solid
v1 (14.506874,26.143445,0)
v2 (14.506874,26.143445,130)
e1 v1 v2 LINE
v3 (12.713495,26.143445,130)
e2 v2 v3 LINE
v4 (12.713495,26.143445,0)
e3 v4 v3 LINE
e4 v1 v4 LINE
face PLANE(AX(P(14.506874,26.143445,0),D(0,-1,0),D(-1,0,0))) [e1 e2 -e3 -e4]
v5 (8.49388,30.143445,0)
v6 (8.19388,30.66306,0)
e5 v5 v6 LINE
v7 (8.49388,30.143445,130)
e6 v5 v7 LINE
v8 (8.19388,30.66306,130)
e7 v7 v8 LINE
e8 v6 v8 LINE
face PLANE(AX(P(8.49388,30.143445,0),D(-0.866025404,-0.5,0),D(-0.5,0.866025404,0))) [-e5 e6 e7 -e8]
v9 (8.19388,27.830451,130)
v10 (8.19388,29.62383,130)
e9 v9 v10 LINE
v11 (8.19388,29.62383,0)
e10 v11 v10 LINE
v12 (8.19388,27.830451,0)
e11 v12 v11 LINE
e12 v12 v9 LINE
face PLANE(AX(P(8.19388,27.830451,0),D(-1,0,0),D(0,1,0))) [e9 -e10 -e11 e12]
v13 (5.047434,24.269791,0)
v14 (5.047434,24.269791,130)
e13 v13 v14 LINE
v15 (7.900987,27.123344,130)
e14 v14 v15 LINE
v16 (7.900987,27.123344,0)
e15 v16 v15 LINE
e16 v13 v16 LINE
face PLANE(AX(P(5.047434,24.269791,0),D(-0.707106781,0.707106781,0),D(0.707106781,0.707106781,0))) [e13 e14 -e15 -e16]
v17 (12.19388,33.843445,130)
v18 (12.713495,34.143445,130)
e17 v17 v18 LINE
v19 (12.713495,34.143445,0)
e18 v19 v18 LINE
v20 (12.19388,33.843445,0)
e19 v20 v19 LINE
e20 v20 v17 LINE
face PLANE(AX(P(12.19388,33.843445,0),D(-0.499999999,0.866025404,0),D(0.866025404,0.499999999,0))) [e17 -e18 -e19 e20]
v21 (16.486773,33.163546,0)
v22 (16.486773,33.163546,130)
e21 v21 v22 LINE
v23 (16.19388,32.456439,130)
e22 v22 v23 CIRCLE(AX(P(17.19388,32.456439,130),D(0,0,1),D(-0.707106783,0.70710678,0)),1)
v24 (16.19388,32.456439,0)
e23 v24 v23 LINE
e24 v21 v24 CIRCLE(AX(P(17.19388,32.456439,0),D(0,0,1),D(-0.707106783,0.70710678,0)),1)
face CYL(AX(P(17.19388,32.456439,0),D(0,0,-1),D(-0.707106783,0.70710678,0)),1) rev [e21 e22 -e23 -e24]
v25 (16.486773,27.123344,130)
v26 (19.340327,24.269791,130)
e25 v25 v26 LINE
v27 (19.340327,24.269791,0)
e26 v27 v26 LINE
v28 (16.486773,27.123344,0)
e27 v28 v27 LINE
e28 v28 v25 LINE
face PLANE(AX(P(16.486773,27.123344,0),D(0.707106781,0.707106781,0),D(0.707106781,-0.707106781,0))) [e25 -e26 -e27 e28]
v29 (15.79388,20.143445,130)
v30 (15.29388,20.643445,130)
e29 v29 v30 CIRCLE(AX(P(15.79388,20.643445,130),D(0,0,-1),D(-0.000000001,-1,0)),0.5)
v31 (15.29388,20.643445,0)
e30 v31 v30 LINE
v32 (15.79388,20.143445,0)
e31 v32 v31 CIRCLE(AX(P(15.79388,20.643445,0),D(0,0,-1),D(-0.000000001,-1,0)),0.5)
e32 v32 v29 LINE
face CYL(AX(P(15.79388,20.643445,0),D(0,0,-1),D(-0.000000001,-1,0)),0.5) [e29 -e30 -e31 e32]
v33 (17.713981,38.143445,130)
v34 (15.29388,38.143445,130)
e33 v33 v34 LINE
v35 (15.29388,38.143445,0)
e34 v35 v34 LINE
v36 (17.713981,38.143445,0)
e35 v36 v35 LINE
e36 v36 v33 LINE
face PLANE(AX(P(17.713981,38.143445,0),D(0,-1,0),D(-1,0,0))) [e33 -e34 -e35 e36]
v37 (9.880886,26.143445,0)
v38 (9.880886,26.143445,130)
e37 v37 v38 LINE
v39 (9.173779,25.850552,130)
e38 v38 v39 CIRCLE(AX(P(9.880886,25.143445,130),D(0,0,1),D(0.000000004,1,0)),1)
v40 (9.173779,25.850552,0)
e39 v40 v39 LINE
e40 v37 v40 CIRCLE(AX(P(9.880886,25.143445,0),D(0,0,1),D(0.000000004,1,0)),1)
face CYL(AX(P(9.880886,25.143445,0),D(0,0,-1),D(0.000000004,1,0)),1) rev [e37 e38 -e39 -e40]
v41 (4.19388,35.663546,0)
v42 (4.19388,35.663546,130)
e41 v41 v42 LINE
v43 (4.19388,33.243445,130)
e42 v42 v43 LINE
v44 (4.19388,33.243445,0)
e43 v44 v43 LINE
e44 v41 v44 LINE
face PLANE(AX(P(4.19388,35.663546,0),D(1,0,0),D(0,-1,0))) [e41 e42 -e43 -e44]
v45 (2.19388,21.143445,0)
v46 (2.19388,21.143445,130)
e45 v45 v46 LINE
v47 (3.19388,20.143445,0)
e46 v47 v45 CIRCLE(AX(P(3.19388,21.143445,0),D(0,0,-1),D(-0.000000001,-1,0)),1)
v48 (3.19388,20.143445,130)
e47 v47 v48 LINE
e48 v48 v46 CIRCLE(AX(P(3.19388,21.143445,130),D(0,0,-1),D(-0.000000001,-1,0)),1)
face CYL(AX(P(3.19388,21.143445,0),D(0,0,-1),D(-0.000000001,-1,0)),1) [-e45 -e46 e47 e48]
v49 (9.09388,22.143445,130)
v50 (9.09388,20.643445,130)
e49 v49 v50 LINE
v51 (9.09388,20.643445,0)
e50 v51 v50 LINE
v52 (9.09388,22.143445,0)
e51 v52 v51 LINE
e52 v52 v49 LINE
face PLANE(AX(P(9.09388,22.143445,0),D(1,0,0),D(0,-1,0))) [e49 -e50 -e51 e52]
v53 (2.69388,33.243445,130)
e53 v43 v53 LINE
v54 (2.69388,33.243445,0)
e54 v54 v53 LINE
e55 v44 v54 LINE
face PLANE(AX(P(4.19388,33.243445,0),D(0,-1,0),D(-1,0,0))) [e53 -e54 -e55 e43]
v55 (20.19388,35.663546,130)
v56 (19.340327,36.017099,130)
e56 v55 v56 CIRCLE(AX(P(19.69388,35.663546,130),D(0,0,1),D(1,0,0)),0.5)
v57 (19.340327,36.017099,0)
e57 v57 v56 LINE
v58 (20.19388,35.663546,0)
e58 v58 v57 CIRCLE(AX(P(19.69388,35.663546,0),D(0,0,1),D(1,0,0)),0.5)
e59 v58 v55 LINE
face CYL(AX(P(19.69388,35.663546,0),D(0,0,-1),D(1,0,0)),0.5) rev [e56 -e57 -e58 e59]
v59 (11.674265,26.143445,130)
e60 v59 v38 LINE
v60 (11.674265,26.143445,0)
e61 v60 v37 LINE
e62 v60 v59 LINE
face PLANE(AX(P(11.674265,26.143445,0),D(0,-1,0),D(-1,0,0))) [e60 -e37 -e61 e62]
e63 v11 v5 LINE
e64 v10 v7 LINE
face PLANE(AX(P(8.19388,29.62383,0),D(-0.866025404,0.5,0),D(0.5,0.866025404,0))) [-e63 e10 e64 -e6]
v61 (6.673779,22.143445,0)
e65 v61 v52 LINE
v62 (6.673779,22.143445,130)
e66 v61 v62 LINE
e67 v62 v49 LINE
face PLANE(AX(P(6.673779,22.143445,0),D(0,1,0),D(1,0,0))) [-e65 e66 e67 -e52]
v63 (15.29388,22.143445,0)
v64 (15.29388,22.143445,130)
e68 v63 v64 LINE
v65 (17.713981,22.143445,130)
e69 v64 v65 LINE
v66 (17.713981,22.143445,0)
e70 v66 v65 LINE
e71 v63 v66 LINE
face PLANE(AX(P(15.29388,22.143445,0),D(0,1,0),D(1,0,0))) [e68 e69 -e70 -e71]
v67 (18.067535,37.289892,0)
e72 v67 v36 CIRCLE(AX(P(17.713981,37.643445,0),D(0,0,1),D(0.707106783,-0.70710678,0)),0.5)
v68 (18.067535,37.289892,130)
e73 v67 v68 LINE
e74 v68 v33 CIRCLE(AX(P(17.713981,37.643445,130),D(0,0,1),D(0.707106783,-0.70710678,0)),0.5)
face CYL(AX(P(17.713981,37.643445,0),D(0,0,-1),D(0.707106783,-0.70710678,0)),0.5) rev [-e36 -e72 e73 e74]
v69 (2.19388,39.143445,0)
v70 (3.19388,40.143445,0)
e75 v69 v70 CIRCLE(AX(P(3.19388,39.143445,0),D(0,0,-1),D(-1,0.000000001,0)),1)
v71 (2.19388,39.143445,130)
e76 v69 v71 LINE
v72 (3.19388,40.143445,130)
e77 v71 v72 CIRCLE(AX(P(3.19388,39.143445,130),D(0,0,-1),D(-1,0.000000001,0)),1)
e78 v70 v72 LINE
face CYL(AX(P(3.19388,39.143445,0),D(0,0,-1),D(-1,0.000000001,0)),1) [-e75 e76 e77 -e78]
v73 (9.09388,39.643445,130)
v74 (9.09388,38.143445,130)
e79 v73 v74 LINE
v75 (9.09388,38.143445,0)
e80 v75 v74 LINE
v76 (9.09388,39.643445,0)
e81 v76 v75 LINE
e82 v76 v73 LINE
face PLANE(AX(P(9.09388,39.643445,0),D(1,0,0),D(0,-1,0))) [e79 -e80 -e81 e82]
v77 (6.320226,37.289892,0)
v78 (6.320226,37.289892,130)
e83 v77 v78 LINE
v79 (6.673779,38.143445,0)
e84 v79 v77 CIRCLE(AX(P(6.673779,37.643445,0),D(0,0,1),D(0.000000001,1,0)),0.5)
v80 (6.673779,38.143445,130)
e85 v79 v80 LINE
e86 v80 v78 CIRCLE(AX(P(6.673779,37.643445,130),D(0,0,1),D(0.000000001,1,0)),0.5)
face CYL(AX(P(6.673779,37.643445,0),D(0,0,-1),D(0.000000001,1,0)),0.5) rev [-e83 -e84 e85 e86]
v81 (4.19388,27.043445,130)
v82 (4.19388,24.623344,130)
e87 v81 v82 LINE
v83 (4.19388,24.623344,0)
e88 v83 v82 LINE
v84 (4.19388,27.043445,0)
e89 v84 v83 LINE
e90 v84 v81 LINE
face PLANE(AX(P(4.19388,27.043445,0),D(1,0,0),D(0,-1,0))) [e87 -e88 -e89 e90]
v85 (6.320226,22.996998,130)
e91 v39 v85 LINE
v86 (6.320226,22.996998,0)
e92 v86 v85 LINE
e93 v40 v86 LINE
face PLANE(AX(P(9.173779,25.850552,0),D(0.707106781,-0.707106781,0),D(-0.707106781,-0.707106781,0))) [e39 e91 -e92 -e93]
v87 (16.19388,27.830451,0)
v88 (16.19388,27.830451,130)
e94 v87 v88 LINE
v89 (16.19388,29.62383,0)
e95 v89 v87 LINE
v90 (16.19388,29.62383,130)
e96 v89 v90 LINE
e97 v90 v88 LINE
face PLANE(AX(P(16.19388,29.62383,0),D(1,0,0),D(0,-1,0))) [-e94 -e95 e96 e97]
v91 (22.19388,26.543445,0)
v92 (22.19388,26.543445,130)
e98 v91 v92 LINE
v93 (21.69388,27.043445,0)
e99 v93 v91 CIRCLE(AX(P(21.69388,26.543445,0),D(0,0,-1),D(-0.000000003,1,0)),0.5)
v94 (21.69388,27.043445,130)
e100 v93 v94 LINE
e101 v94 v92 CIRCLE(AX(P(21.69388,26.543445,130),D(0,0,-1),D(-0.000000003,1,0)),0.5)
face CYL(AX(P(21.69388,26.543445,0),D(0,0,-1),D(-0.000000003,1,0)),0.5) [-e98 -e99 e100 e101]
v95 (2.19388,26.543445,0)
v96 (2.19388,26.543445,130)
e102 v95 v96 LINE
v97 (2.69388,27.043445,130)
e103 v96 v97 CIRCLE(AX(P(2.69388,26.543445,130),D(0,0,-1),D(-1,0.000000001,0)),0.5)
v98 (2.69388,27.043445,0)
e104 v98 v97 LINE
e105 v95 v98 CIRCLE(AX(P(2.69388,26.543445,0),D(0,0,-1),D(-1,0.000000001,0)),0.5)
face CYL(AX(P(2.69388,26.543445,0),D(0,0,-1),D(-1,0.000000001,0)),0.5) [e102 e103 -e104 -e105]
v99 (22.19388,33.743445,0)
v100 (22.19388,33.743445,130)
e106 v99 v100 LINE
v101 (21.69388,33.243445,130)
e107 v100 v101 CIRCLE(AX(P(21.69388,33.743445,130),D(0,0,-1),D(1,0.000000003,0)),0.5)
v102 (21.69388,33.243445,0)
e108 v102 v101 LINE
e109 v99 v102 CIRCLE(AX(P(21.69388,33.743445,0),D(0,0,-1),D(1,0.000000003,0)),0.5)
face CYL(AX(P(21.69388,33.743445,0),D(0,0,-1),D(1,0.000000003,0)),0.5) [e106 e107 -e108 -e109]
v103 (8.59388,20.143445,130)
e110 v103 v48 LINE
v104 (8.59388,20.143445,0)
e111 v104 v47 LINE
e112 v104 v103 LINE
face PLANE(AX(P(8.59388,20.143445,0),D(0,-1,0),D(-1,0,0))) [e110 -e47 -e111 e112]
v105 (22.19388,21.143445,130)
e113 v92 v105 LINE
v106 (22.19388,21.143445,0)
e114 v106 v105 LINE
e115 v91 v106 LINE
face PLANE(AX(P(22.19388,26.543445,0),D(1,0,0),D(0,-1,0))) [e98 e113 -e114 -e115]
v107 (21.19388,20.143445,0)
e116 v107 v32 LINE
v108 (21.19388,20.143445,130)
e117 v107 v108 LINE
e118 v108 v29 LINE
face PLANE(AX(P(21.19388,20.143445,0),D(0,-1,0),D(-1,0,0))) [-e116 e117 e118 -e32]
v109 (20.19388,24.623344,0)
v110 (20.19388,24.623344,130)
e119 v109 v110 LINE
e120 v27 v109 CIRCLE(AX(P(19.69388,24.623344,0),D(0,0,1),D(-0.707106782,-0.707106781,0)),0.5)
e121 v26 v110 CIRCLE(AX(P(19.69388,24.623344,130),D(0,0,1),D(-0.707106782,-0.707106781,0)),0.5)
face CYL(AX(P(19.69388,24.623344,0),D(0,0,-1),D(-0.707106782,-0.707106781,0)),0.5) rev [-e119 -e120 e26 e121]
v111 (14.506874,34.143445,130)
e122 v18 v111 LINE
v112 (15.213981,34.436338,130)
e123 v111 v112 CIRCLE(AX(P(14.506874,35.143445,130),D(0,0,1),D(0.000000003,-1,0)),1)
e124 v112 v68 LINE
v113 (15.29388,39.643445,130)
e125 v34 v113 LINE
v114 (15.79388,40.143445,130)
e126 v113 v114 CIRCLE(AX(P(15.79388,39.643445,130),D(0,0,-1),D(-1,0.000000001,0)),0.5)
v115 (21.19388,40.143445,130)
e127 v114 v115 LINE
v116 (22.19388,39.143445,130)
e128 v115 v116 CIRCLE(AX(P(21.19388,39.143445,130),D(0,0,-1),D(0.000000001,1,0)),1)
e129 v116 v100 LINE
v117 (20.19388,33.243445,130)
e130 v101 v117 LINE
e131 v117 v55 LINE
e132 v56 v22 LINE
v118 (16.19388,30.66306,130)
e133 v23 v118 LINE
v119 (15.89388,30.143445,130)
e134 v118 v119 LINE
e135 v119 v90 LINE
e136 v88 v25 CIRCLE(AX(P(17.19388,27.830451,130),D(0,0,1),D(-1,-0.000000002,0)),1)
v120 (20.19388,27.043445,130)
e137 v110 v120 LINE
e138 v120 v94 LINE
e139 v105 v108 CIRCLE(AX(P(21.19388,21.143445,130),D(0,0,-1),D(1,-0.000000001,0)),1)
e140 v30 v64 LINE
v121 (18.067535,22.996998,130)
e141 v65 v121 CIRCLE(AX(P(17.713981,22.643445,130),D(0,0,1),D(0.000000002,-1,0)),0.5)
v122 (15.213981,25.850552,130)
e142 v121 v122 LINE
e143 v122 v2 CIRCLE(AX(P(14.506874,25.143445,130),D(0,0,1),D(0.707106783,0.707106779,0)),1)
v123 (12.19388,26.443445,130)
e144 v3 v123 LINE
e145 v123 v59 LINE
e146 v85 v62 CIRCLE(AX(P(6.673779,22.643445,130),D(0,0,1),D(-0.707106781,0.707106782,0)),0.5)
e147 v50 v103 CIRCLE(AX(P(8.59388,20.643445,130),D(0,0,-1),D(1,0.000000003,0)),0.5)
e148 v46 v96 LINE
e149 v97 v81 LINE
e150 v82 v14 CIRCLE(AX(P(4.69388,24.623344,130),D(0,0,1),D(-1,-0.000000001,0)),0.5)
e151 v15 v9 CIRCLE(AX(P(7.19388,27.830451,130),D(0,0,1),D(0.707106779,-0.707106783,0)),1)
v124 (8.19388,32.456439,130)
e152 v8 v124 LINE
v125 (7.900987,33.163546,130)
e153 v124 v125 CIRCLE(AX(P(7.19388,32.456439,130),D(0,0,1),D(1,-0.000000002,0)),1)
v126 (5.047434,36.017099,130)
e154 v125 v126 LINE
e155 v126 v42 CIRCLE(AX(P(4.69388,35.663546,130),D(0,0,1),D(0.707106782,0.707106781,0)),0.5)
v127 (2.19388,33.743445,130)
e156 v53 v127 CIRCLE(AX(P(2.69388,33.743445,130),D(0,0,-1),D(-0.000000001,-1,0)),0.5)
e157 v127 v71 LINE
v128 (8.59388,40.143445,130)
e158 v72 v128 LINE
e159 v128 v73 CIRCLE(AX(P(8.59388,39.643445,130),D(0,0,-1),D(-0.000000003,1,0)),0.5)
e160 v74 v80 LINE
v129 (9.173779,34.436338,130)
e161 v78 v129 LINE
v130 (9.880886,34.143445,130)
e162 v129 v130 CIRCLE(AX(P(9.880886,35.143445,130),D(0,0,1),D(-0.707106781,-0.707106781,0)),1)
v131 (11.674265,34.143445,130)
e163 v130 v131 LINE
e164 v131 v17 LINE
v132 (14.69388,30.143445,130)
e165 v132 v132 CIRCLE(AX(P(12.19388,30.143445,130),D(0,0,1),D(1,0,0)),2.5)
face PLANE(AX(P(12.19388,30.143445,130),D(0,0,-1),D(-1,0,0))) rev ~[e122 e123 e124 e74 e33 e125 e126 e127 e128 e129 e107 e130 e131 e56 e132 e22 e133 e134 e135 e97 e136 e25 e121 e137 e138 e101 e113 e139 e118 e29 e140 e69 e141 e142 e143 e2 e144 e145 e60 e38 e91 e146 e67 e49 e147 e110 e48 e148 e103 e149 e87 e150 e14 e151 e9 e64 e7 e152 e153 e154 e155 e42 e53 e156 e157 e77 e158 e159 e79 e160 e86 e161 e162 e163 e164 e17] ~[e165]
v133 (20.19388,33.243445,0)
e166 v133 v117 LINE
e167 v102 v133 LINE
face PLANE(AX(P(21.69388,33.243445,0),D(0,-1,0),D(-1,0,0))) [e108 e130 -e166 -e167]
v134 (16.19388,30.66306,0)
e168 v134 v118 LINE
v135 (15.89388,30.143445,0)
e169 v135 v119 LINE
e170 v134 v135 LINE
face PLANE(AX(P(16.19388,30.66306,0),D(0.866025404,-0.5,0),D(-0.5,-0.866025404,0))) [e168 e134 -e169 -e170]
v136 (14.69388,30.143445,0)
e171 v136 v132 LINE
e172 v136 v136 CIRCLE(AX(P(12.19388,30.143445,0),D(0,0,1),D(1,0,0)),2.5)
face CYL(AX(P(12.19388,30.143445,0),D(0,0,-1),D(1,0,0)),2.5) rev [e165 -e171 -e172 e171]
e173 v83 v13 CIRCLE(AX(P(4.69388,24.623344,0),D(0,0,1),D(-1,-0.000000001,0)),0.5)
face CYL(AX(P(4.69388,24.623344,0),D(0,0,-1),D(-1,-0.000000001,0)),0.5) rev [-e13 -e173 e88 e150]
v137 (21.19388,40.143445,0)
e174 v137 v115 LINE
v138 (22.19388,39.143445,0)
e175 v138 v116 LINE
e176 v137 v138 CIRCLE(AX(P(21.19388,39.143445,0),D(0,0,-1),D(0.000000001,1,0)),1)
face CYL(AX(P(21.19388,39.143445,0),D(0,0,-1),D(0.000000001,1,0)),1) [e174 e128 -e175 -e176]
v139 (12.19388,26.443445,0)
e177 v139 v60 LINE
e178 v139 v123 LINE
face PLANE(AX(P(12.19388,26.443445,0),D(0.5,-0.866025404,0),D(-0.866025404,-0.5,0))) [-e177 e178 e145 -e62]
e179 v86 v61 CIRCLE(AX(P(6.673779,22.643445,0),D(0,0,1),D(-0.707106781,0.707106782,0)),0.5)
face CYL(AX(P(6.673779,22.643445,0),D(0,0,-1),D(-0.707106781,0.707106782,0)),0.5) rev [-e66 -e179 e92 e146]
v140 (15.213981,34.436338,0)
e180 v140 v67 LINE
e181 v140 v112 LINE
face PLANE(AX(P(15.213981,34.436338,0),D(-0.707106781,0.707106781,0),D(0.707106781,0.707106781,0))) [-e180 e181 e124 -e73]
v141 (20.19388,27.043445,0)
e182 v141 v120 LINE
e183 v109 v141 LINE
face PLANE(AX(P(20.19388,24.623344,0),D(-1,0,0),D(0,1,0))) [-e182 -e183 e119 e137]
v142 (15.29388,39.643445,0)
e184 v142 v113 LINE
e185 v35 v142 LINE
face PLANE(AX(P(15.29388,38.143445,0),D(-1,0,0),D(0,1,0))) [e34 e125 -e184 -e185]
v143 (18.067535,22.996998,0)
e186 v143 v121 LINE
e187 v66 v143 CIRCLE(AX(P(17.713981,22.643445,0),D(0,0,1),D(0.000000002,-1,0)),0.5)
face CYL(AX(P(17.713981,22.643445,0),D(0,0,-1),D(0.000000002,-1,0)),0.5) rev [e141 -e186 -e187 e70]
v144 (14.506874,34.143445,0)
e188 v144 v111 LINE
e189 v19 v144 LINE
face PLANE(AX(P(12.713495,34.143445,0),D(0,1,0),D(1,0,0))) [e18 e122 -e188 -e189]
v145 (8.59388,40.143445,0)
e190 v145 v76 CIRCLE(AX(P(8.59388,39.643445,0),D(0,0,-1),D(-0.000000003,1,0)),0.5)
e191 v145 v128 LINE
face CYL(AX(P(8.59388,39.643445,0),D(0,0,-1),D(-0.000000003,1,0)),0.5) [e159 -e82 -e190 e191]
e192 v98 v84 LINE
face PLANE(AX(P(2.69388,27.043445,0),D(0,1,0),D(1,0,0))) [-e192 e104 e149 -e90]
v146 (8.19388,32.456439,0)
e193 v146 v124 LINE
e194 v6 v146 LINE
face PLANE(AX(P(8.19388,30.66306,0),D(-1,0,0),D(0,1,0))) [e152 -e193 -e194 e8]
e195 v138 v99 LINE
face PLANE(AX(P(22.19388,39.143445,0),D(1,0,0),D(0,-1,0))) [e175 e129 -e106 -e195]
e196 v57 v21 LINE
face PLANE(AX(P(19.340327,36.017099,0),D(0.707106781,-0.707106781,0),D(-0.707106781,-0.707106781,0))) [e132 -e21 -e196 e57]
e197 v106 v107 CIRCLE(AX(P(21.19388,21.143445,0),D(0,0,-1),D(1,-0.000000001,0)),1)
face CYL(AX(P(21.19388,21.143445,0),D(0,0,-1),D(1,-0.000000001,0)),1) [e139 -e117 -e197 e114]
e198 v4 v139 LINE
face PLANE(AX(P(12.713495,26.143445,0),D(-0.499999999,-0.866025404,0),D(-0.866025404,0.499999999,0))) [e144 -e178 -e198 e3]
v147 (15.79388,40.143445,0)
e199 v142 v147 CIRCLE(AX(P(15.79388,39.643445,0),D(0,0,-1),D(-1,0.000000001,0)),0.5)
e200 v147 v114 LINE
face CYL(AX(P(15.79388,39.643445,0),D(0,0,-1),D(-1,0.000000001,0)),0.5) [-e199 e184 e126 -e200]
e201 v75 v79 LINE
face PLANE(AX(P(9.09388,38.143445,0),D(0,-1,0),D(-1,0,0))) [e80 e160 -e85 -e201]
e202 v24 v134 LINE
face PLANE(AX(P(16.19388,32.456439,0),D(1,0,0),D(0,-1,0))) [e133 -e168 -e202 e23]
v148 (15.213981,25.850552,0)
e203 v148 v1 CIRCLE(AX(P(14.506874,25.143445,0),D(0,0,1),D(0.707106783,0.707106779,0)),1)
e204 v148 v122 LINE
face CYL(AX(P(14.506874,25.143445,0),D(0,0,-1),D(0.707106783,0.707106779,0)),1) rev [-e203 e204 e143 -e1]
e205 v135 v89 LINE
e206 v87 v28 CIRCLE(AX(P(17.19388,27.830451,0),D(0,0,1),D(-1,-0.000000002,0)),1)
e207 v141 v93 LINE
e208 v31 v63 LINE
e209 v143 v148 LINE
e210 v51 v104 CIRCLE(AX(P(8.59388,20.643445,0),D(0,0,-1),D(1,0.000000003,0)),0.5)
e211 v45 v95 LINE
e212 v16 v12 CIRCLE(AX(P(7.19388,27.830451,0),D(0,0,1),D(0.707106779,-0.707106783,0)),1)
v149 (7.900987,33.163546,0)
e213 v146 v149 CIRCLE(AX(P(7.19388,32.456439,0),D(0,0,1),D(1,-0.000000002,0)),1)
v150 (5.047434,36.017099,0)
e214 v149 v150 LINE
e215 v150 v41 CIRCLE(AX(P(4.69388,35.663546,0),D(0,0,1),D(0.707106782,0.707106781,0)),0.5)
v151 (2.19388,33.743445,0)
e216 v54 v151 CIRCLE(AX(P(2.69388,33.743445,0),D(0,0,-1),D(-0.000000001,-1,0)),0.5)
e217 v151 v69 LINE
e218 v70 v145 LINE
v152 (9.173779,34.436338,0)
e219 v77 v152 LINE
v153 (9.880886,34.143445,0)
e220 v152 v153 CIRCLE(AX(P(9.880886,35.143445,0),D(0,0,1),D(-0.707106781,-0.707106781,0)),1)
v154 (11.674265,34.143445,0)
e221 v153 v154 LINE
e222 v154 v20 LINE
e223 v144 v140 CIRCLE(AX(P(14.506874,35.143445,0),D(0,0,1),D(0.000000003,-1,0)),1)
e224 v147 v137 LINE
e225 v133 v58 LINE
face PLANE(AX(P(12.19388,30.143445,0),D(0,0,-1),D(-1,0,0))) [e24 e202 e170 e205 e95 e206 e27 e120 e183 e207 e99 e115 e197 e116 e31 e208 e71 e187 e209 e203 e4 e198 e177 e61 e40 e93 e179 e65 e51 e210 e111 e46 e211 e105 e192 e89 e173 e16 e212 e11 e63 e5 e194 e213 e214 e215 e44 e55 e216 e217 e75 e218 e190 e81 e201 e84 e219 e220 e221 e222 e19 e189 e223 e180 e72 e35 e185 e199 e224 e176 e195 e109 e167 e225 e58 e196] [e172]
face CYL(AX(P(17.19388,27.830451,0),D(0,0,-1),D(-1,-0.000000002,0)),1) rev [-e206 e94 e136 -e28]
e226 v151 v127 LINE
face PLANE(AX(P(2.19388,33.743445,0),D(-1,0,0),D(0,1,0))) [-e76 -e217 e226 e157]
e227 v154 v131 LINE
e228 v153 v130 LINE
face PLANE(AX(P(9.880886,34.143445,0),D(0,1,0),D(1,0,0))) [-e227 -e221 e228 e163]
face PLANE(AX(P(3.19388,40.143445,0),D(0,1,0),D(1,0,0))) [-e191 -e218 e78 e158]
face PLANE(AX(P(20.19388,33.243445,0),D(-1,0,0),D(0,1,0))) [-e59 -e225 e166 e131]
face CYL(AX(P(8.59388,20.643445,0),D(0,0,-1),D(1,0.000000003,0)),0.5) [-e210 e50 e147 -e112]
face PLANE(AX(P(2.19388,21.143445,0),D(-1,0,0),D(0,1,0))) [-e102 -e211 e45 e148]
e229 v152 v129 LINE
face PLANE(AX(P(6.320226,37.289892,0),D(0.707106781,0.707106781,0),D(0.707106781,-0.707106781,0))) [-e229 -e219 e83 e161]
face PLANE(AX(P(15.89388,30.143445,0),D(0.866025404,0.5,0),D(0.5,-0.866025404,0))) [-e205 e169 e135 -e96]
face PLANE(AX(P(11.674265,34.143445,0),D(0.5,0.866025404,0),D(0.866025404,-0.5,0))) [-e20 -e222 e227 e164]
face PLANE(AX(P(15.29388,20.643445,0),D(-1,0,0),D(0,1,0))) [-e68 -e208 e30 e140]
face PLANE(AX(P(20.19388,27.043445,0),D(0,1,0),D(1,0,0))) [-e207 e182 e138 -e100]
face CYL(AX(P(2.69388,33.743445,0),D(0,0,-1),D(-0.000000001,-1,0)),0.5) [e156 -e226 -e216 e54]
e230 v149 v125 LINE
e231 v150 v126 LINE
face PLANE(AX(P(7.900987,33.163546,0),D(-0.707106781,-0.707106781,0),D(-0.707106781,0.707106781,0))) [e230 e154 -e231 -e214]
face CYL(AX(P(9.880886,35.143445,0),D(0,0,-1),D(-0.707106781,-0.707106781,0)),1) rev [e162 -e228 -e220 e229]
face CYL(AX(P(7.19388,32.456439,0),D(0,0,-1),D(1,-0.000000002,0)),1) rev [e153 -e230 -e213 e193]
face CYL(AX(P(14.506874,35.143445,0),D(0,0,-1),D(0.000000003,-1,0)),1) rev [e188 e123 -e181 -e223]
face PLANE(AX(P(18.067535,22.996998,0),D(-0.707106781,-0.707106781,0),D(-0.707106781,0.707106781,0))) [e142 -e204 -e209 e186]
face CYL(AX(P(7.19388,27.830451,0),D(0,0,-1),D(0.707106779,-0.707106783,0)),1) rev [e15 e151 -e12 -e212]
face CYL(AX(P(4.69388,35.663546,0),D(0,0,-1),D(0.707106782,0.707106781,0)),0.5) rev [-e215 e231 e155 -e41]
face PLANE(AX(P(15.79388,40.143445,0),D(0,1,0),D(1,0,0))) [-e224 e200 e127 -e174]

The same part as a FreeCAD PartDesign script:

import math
import FreeCAD as App
import Part
import Sketcher

V = App.Vector
Q = App.Units.Quantity

doc = App.newDocument("Part")
params = doc.addObject("Spreadsheet::Sheet", "Params")
for row, (alias, value) in enumerate([
    ("sketch1_diameter", "5 mm"),
    ("sketch1_radius", "1 mm"),
    ("sketch1_radius2", "0.5 mm"),
    ("sketch1_width", "1.5 mm"),
    ("sketch1_width2", "5.4 mm"),
    ("pad1_length", "130 mm"),
], start=1):
    params.set(f"A{row}", alias)
    params.set(f"B{row}", "=" + value)
    params.setAlias(f"B{row}", alias)

body = doc.addObject("PartDesign::Body", "Body")

# Sketch on XY plane
sketch1 = body.newObject("Sketcher::SketchObject", "Sketch")
sketch1.AttachmentSupport = (doc.getObject("XY_Plane"), [""])
sketch1.MapMode = "FlatFace"
sketch1.addGeometry(Part.LineSegment(V(19.34, 24.27, 0), V(16.49, 27.12, 0)), False)
sketch1.addGeometry(Part.ArcOfCircle(Part.Circle(V(17.19, 27.83, 0), V(0, 0, 1), 1), math.radians(-180), math.radians(-135)), False)
sketch1.addGeometry(Part.LineSegment(V(16.19, 27.83, 0), V(16.19, 29.62, 0)), False)
sketch1.addGeometry(Part.LineSegment(V(16.19, 29.62, 0), V(15.89, 30.14, 0)), False)
sketch1.addGeometry(Part.LineSegment(V(15.89, 30.14, 0), V(16.19, 30.66, 0)), False)
sketch1.addGeometry(Part.LineSegment(V(16.19, 30.66, 0), V(16.19, 32.46, 0)), False)
sketch1.addGeometry(Part.ArcOfCircle(Part.Circle(V(17.19, 32.46, 0), V(0, 0, 1), 1), math.radians(135), math.radians(180)), False)
sketch1.addGeometry(Part.LineSegment(V(16.49, 33.16, 0), V(19.34, 36.02, 0)), False)
sketch1.addGeometry(Part.ArcOfCircle(Part.Circle(V(19.69, 35.66, 0), V(0, 0, 1), 0.5), math.radians(0), math.radians(135)), False)
sketch1.addGeometry(Part.LineSegment(V(20.19, 35.66, 0), V(20.19, 33.24, 0)), False)
sketch1.addGeometry(Part.LineSegment(V(20.19, 33.24, 0), V(21.69, 33.24, 0)), False)
sketch1.addGeometry(Part.ArcOfCircle(Part.Circle(V(21.69, 33.74, 0), V(0, 0, 1), 0.5), math.radians(-90), math.radians(0)), False)
sketch1.addGeometry(Part.LineSegment(V(22.19, 33.74, 0), V(22.19, 39.14, 0)), False)
sketch1.addGeometry(Part.ArcOfCircle(Part.Circle(V(21.19, 39.14, 0), V(0, 0, 1), 1), math.radians(0), math.radians(90)), False)
sketch1.addGeometry(Part.LineSegment(V(21.19, 40.14, 0), V(15.79, 40.14, 0)), False)
sketch1.addGeometry(Part.ArcOfCircle(Part.Circle(V(15.79, 39.64, 0), V(0, 0, 1), 0.5), math.radians(90), math.radians(180)), False)
sketch1.addGeometry(Part.LineSegment(V(15.29, 39.64, 0), V(15.29, 38.14, 0)), False)
sketch1.addGeometry(Part.LineSegment(V(15.29, 38.14, 0), V(17.71, 38.14, 0)), False)
sketch1.addGeometry(Part.ArcOfCircle(Part.Circle(V(17.71, 37.64, 0), V(0, 0, 1), 0.5), math.radians(-45), math.radians(90)), False)
sketch1.addGeometry(Part.LineSegment(V(18.07, 37.29, 0), V(15.21, 34.44, 0)), False)
sketch1.addGeometry(Part.ArcOfCircle(Part.Circle(V(14.51, 35.14, 0), V(0, 0, 1), 1), math.radians(-90), math.radians(-45)), False)
sketch1.addGeometry(Part.LineSegment(V(14.51, 34.14, 0), V(12.71, 34.14, 0)), False)
sketch1.addGeometry(Part.LineSegment(V(12.71, 34.14, 0), V(12.19, 33.84, 0)), False)
sketch1.addGeometry(Part.LineSegment(V(12.19, 33.84, 0), V(11.67, 34.14, 0)), False)
sketch1.addGeometry(Part.LineSegment(V(11.67, 34.14, 0), V(9.88, 34.14, 0)), False)
sketch1.addGeometry(Part.ArcOfCircle(Part.Circle(V(9.88, 35.14, 0), V(0, 0, 1), 1), math.radians(-135), math.radians(-90)), False)
sketch1.addGeometry(Part.LineSegment(V(9.17, 34.44, 0), V(6.32, 37.29, 0)), False)
sketch1.addGeometry(Part.ArcOfCircle(Part.Circle(V(6.67, 37.64, 0), V(0, 0, 1), 0.5), math.radians(90), math.radians(225)), False)
sketch1.addGeometry(Part.LineSegment(V(6.67, 38.14, 0), V(9.09, 38.14, 0)), False)
sketch1.addGeometry(Part.LineSegment(V(9.09, 38.14, 0), V(9.09, 39.64, 0)), False)
sketch1.addGeometry(Part.ArcOfCircle(Part.Circle(V(8.59, 39.64, 0), V(0, 0, 1), 0.5), math.radians(0), math.radians(90)), False)
sketch1.addGeometry(Part.LineSegment(V(8.59, 40.14, 0), V(3.19, 40.14, 0)), False)
sketch1.addGeometry(Part.ArcOfCircle(Part.Circle(V(3.19, 39.14, 0), V(0, 0, 1), 1), math.radians(90), math.radians(180)), False)
sketch1.addGeometry(Part.LineSegment(V(2.19, 39.14, 0), V(2.19, 33.74, 0)), False)
sketch1.addGeometry(Part.ArcOfCircle(Part.Circle(V(2.69, 33.74, 0), V(0, 0, 1), 0.5), math.radians(180), math.radians(270)), False)
sketch1.addGeometry(Part.LineSegment(V(2.69, 33.24, 0), V(4.19, 33.24, 0)), False)
sketch1.addGeometry(Part.LineSegment(V(4.19, 33.24, 0), V(4.19, 35.66, 0)), False)
sketch1.addGeometry(Part.ArcOfCircle(Part.Circle(V(4.69, 35.66, 0), V(0, 0, 1), 0.5), math.radians(45), math.radians(180)), False)
sketch1.addGeometry(Part.LineSegment(V(5.05, 36.02, 0), V(7.9, 33.16, 0)), False)
sketch1.addGeometry(Part.ArcOfCircle(Part.Circle(V(7.19, 32.46, 0), V(0, 0, 1), 1), math.radians(0), math.radians(45)), False)
sketch1.addGeometry(Part.LineSegment(V(8.19, 32.46, 0), V(8.19, 30.66, 0)), False)
sketch1.addGeometry(Part.LineSegment(V(8.19, 30.66, 0), V(8.49, 30.14, 0)), False)
sketch1.addGeometry(Part.LineSegment(V(8.49, 30.14, 0), V(8.19, 29.62, 0)), False)
sketch1.addGeometry(Part.LineSegment(V(8.19, 29.62, 0), V(8.19, 27.83, 0)), False)
sketch1.addGeometry(Part.ArcOfCircle(Part.Circle(V(7.19, 27.83, 0), V(0, 0, 1), 1), math.radians(-45), math.radians(0)), False)
sketch1.addGeometry(Part.LineSegment(V(7.9, 27.12, 0), V(5.05, 24.27, 0)), False)
sketch1.addGeometry(Part.ArcOfCircle(Part.Circle(V(4.69, 24.62, 0), V(0, 0, 1), 0.5), math.radians(180), math.radians(315)), False)
sketch1.addGeometry(Part.LineSegment(V(4.19, 24.62, 0), V(4.19, 27.04, 0)), False)
sketch1.addGeometry(Part.LineSegment(V(4.19, 27.04, 0), V(2.69, 27.04, 0)), False)
sketch1.addGeometry(Part.ArcOfCircle(Part.Circle(V(2.69, 26.54, 0), V(0, 0, 1), 0.5), math.radians(90), math.radians(180)), False)
sketch1.addGeometry(Part.LineSegment(V(2.19, 26.54, 0), V(2.19, 21.14, 0)), False)
sketch1.addGeometry(Part.ArcOfCircle(Part.Circle(V(3.19, 21.14, 0), V(0, 0, 1), 1), math.radians(-180), math.radians(-90)), False)
sketch1.addGeometry(Part.LineSegment(V(3.19, 20.14, 0), V(8.59, 20.14, 0)), False)
sketch1.addGeometry(Part.ArcOfCircle(Part.Circle(V(8.59, 20.64, 0), V(0, 0, 1), 0.5), math.radians(-90), math.radians(0)), False)
sketch1.addGeometry(Part.LineSegment(V(9.09, 20.64, 0), V(9.09, 22.14, 0)), False)
sketch1.addGeometry(Part.LineSegment(V(9.09, 22.14, 0), V(6.67, 22.14, 0)), False)
sketch1.addGeometry(Part.ArcOfCircle(Part.Circle(V(6.67, 22.64, 0), V(0, 0, 1), 0.5), math.radians(135), math.radians(270)), False)
sketch1.addGeometry(Part.LineSegment(V(6.32, 23, 0), V(9.17, 25.85, 0)), False)
sketch1.addGeometry(Part.ArcOfCircle(Part.Circle(V(9.88, 25.14, 0), V(0, 0, 1), 1), math.radians(90), math.radians(135)), False)
sketch1.addGeometry(Part.LineSegment(V(9.88, 26.14, 0), V(11.67, 26.14, 0)), False)
sketch1.addGeometry(Part.LineSegment(V(11.67, 26.14, 0), V(12.19, 26.44, 0)), False)
sketch1.addGeometry(Part.LineSegment(V(12.19, 26.44, 0), V(12.71, 26.14, 0)), False)
sketch1.addGeometry(Part.LineSegment(V(12.71, 26.14, 0), V(14.51, 26.14, 0)), False)
sketch1.addGeometry(Part.ArcOfCircle(Part.Circle(V(14.51, 25.14, 0), V(0, 0, 1), 1), math.radians(45), math.radians(90)), False)
sketch1.addGeometry(Part.LineSegment(V(15.21, 25.85, 0), V(18.07, 23, 0)), False)
sketch1.addGeometry(Part.ArcOfCircle(Part.Circle(V(17.71, 22.64, 0), V(0, 0, 1), 0.5), math.radians(-90), math.radians(45)), False)
sketch1.addGeometry(Part.LineSegment(V(17.71, 22.14, 0), V(15.29, 22.14, 0)), False)
sketch1.addGeometry(Part.LineSegment(V(15.29, 22.14, 0), V(15.29, 20.64, 0)), False)
sketch1.addGeometry(Part.ArcOfCircle(Part.Circle(V(15.79, 20.64, 0), V(0, 0, 1), 0.5), math.radians(180), math.radians(270)), False)
sketch1.addGeometry(Part.LineSegment(V(15.79, 20.14, 0), V(21.19, 20.14, 0)), False)
sketch1.addGeometry(Part.ArcOfCircle(Part.Circle(V(21.19, 21.14, 0), V(0, 0, 1), 1), math.radians(-90), math.radians(0)), False)
sketch1.addGeometry(Part.LineSegment(V(22.19, 21.14, 0), V(22.19, 26.54, 0)), False)
sketch1.addGeometry(Part.ArcOfCircle(Part.Circle(V(21.69, 26.54, 0), V(0, 0, 1), 0.5), math.radians(0), math.radians(90)), False)
sketch1.addGeometry(Part.LineSegment(V(21.69, 27.04, 0), V(20.19, 27.04, 0)), False)
sketch1.addGeometry(Part.LineSegment(V(20.19, 27.04, 0), V(20.19, 24.62, 0)), False)
sketch1.addGeometry(Part.ArcOfCircle(Part.Circle(V(19.69, 24.62, 0), V(0, 0, 1), 0.5), math.radians(-135), math.radians(0)), False)
sketch1.addGeometry(Part.Circle(V(12.19, 30.14, 0), V(0, 0, 1), 2.5), False)
sketch1.addConstraint(Sketcher.Constraint("Tangent", 0, 2, 1, 2))
sketch1.addConstraint(Sketcher.Constraint("Tangent", 1, 1, 2, 1))
sketch1.addConstraint(Sketcher.Constraint("Coincident", 2, 2, 3, 1))
sketch1.addConstraint(Sketcher.Constraint("Coincident", 3, 2, 4, 1))
sketch1.addConstraint(Sketcher.Constraint("Coincident", 4, 2, 5, 1))
sketch1.addConstraint(Sketcher.Constraint("Tangent", 5, 2, 6, 2))
sketch1.addConstraint(Sketcher.Constraint("Tangent", 6, 1, 7, 1))
sketch1.addConstraint(Sketcher.Constraint("Tangent", 7, 2, 8, 2))
sketch1.addConstraint(Sketcher.Constraint("Tangent", 8, 1, 9, 1))
sketch1.addConstraint(Sketcher.Constraint("Coincident", 9, 2, 10, 1))
sketch1.addConstraint(Sketcher.Constraint("Tangent", 10, 2, 11, 1))
sketch1.addConstraint(Sketcher.Constraint("Tangent", 11, 2, 12, 1))
sketch1.addConstraint(Sketcher.Constraint("Tangent", 12, 2, 13, 1))
sketch1.addConstraint(Sketcher.Constraint("Tangent", 13, 2, 14, 1))
sketch1.addConstraint(Sketcher.Constraint("Tangent", 14, 2, 15, 1))
sketch1.addConstraint(Sketcher.Constraint("Tangent", 15, 2, 16, 1))
sketch1.addConstraint(Sketcher.Constraint("Coincident", 16, 2, 17, 1))
sketch1.addConstraint(Sketcher.Constraint("Tangent", 17, 2, 18, 2))
sketch1.addConstraint(Sketcher.Constraint("Tangent", 18, 1, 19, 1))
sketch1.addConstraint(Sketcher.Constraint("Tangent", 19, 2, 20, 2))
sketch1.addConstraint(Sketcher.Constraint("Tangent", 20, 1, 21, 1))
sketch1.addConstraint(Sketcher.Constraint("Coincident", 21, 2, 22, 1))
sketch1.addConstraint(Sketcher.Constraint("Coincident", 22, 2, 23, 1))
sketch1.addConstraint(Sketcher.Constraint("Coincident", 23, 2, 24, 1))
sketch1.addConstraint(Sketcher.Constraint("Tangent", 24, 2, 25, 2))
sketch1.addConstraint(Sketcher.Constraint("Tangent", 25, 1, 26, 1))
sketch1.addConstraint(Sketcher.Constraint("Tangent", 26, 2, 27, 2))
sketch1.addConstraint(Sketcher.Constraint("Tangent", 27, 1, 28, 1))
sketch1.addConstraint(Sketcher.Constraint("Coincident", 28, 2, 29, 1))
sketch1.addConstraint(Sketcher.Constraint("Tangent", 29, 2, 30, 1))
sketch1.addConstraint(Sketcher.Constraint("Tangent", 30, 2, 31, 1))
sketch1.addConstraint(Sketcher.Constraint("Tangent", 31, 2, 32, 1))
sketch1.addConstraint(Sketcher.Constraint("Tangent", 32, 2, 33, 1))
sketch1.addConstraint(Sketcher.Constraint("Tangent", 33, 2, 34, 1))
sketch1.addConstraint(Sketcher.Constraint("Tangent", 34, 2, 35, 1))
sketch1.addConstraint(Sketcher.Constraint("Coincident", 35, 2, 36, 1))
sketch1.addConstraint(Sketcher.Constraint("Tangent", 36, 2, 37, 2))
sketch1.addConstraint(Sketcher.Constraint("Tangent", 37, 1, 38, 1))
sketch1.addConstraint(Sketcher.Constraint("Tangent", 38, 2, 39, 2))
sketch1.addConstraint(Sketcher.Constraint("Tangent", 39, 1, 40, 1))
sketch1.addConstraint(Sketcher.Constraint("Coincident", 40, 2, 41, 1))
sketch1.addConstraint(Sketcher.Constraint("Coincident", 41, 2, 42, 1))
sketch1.addConstraint(Sketcher.Constraint("Coincident", 42, 2, 43, 1))
sketch1.addConstraint(Sketcher.Constraint("Tangent", 43, 2, 44, 2))
sketch1.addConstraint(Sketcher.Constraint("Tangent", 44, 1, 45, 1))
sketch1.addConstraint(Sketcher.Constraint("Tangent", 45, 2, 46, 2))
sketch1.addConstraint(Sketcher.Constraint("Tangent", 46, 1, 47, 1))
sketch1.addConstraint(Sketcher.Constraint("Coincident", 47, 2, 48, 1))
sketch1.addConstraint(Sketcher.Constraint("Tangent", 48, 2, 49, 1))
sketch1.addConstraint(Sketcher.Constraint("Tangent", 49, 2, 50, 1))
sketch1.addConstraint(Sketcher.Constraint("Tangent", 50, 2, 51, 1))
sketch1.addConstraint(Sketcher.Constraint("Tangent", 51, 2, 52, 1))
sketch1.addConstraint(Sketcher.Constraint("Tangent", 52, 2, 53, 1))
sketch1.addConstraint(Sketcher.Constraint("Tangent", 53, 2, 54, 1))
sketch1.addConstraint(Sketcher.Constraint("Coincident", 54, 2, 55, 1))
sketch1.addConstraint(Sketcher.Constraint("Tangent", 55, 2, 56, 2))
sketch1.addConstraint(Sketcher.Constraint("Tangent", 56, 1, 57, 1))
sketch1.addConstraint(Sketcher.Constraint("Tangent", 57, 2, 58, 2))
sketch1.addConstraint(Sketcher.Constraint("Tangent", 58, 1, 59, 1))
sketch1.addConstraint(Sketcher.Constraint("Coincident", 59, 2, 60, 1))
sketch1.addConstraint(Sketcher.Constraint("Coincident", 60, 2, 61, 1))
sketch1.addConstraint(Sketcher.Constraint("Coincident", 61, 2, 62, 1))
sketch1.addConstraint(Sketcher.Constraint("Tangent", 62, 2, 63, 2))
sketch1.addConstraint(Sketcher.Constraint("Tangent", 63, 1, 64, 1))
sketch1.addConstraint(Sketcher.Constraint("Tangent", 64, 2, 65, 2))
sketch1.addConstraint(Sketcher.Constraint("Tangent", 65, 1, 66, 1))
sketch1.addConstraint(Sketcher.Constraint("Coincident", 66, 2, 67, 1))
sketch1.addConstraint(Sketcher.Constraint("Tangent", 67, 2, 68, 1))
sketch1.addConstraint(Sketcher.Constraint("Tangent", 68, 2, 69, 1))
sketch1.addConstraint(Sketcher.Constraint("Tangent", 69, 2, 70, 1))
sketch1.addConstraint(Sketcher.Constraint("Tangent", 70, 2, 71, 1))
sketch1.addConstraint(Sketcher.Constraint("Tangent", 71, 2, 72, 1))
sketch1.addConstraint(Sketcher.Constraint("Tangent", 72, 2, 73, 1))
sketch1.addConstraint(Sketcher.Constraint("Coincident", 73, 2, 74, 1))
sketch1.addConstraint(Sketcher.Constraint("Tangent", 74, 2, 75, 2))
sketch1.addConstraint(Sketcher.Constraint("Tangent", 75, 1, 0, 1))
sketch1.addConstraint(Sketcher.Constraint("Vertical", 2))
sketch1.addConstraint(Sketcher.Constraint("Vertical", 5))
sketch1.addConstraint(Sketcher.Constraint("Vertical", 9))
sketch1.addConstraint(Sketcher.Constraint("Horizontal", 10))
sketch1.addConstraint(Sketcher.Constraint("Vertical", 12))
sketch1.addConstraint(Sketcher.Constraint("Horizontal", 14))
sketch1.addConstraint(Sketcher.Constraint("Vertical", 16))
sketch1.addConstraint(Sketcher.Constraint("Horizontal", 17))
sketch1.addConstraint(Sketcher.Constraint("Horizontal", 21))
sketch1.addConstraint(Sketcher.Constraint("Horizontal", 24))
sketch1.addConstraint(Sketcher.Constraint("Horizontal", 28))
sketch1.addConstraint(Sketcher.Constraint("Vertical", 29))
sketch1.addConstraint(Sketcher.Constraint("Horizontal", 31))
sketch1.addConstraint(Sketcher.Constraint("Vertical", 33))
sketch1.addConstraint(Sketcher.Constraint("Horizontal", 35))
sketch1.addConstraint(Sketcher.Constraint("Vertical", 36))
sketch1.addConstraint(Sketcher.Constraint("Vertical", 40))
sketch1.addConstraint(Sketcher.Constraint("Vertical", 43))
sketch1.addConstraint(Sketcher.Constraint("Vertical", 47))
sketch1.addConstraint(Sketcher.Constraint("Horizontal", 48))
sketch1.addConstraint(Sketcher.Constraint("Vertical", 50))
sketch1.addConstraint(Sketcher.Constraint("Horizontal", 52))
sketch1.addConstraint(Sketcher.Constraint("Vertical", 54))
sketch1.addConstraint(Sketcher.Constraint("Horizontal", 55))
sketch1.addConstraint(Sketcher.Constraint("Horizontal", 59))
sketch1.addConstraint(Sketcher.Constraint("Horizontal", 62))
sketch1.addConstraint(Sketcher.Constraint("Horizontal", 66))
sketch1.addConstraint(Sketcher.Constraint("Vertical", 67))
sketch1.addConstraint(Sketcher.Constraint("Horizontal", 69))
sketch1.addConstraint(Sketcher.Constraint("Vertical", 71))
sketch1.addConstraint(Sketcher.Constraint("Horizontal", 73))
sketch1.addConstraint(Sketcher.Constraint("Vertical", 74))
sketch1.addConstraint(Sketcher.Constraint("Equal", 1, 6))
sketch1.addConstraint(Sketcher.Constraint("Equal", 8, 11))
sketch1.addConstraint(Sketcher.Constraint("Equal", 6, 13))
sketch1.addConstraint(Sketcher.Constraint("Equal", 11, 15))
sketch1.addConstraint(Sketcher.Constraint("Equal", 15, 18))
sketch1.addConstraint(Sketcher.Constraint("Equal", 13, 20))
sketch1.addConstraint(Sketcher.Constraint("Equal", 20, 25))
sketch1.addConstraint(Sketcher.Constraint("Equal", 18, 27))
sketch1.addConstraint(Sketcher.Constraint("Equal", 27, 30))
sketch1.addConstraint(Sketcher.Constraint("Equal", 25, 32))
sketch1.addConstraint(Sketcher.Constraint("Equal", 30, 34))
sketch1.addConstraint(Sketcher.Constraint("Equal", 34, 37))
sketch1.addConstraint(Sketcher.Constraint("Equal", 32, 39))
sketch1.addConstraint(Sketcher.Constraint("Equal", 39, 44))
sketch1.addConstraint(Sketcher.Constraint("Equal", 37, 46))
sketch1.addConstraint(Sketcher.Constraint("Equal", 46, 49))
sketch1.addConstraint(Sketcher.Constraint("Equal", 44, 51))
sketch1.addConstraint(Sketcher.Constraint("Equal", 49, 53))
sketch1.addConstraint(Sketcher.Constraint("Equal", 53, 56))
sketch1.addConstraint(Sketcher.Constraint("Equal", 51, 58))
sketch1.addConstraint(Sketcher.Constraint("Equal", 58, 63))
sketch1.addConstraint(Sketcher.Constraint("Equal", 56, 65))
sketch1.addConstraint(Sketcher.Constraint("Equal", 65, 68))
sketch1.addConstraint(Sketcher.Constraint("Equal", 63, 70))
sketch1.addConstraint(Sketcher.Constraint("Equal", 68, 72))
sketch1.addConstraint(Sketcher.Constraint("Equal", 72, 75))
sketch1.addConstraint(Sketcher.Constraint("Perpendicular", 0, 7))
sketch1.addConstraint(Sketcher.Constraint("Parallel", 7, 19))
sketch1.addConstraint(Sketcher.Constraint("Perpendicular", 3, 22))
sketch1.addConstraint(Sketcher.Constraint("Perpendicular", 4, 23))
sketch1.addConstraint(Sketcher.Constraint("Perpendicular", 19, 26))
sketch1.addConstraint(Sketcher.Constraint("Parallel", 26, 38))
sketch1.addConstraint(Sketcher.Constraint("Perpendicular", 22, 41))
sketch1.addConstraint(Sketcher.Constraint("Perpendicular", 23, 42))
sketch1.addConstraint(Sketcher.Constraint("Perpendicular", 38, 45))
sketch1.addConstraint(Sketcher.Constraint("Parallel", 45, 57))
sketch1.addConstraint(Sketcher.Constraint("Perpendicular", 41, 60))
sketch1.addConstraint(Sketcher.Constraint("Perpendicular", 42, 61))
sketch1.addConstraint(Sketcher.Constraint("Perpendicular", 57, 64))
sketch1.addConstraint(Sketcher.Constraint("Horizontal", 20, 3, 25, 3))
sketch1.addConstraint(Sketcher.Constraint("Horizontal", 18, 3, 27, 3))
sketch1.addConstraint(Sketcher.Constraint("Horizontal", 15, 3, 30, 3))
sketch1.addConstraint(Sketcher.Constraint("Horizontal", 11, 3, 34, 3))
sketch1.addConstraint(Sketcher.Constraint("Horizontal", 8, 3, 37, 3))
sketch1.addConstraint(Sketcher.Constraint("Horizontal", 6, 3, 39, 3))
sketch1.addConstraint(Sketcher.Constraint("Horizontal", 1, 3, 44, 3))
sketch1.addConstraint(Sketcher.Constraint("Horizontal", 58, 3, 63, 3))
sketch1.addConstraint(Sketcher.Constraint("Horizontal", 56, 3, 65, 3))
sketch1.addConstraint(Sketcher.Constraint("Horizontal", 53, 3, 68, 3))
sketch1.addConstraint(Sketcher.Constraint("Horizontal", 49, 3, 72, 3))
sketch1.addConstraint(Sketcher.Constraint("Horizontal", 46, 3, 75, 3))
sketch1.addConstraint(Sketcher.Constraint("Horizontal", 76, 3, 3, 2))
sketch1.addConstraint(Sketcher.Constraint("Horizontal", 19, 2, 25, 1))
sketch1.addConstraint(Sketcher.Constraint("Horizontal", 4, 2, 40, 2))
sketch1.addConstraint(Sketcher.Constraint("Horizontal", 3, 2, 41, 2))
sketch1.addConstraint(Sketcher.Constraint("Horizontal", 2, 2, 42, 2))
sketch1.addConstraint(Sketcher.Constraint("Vertical", 1, 3, 6, 3))
sketch1.addConstraint(Sketcher.Constraint("Vertical", 39, 3, 44, 3))
sketch1.addConstraint(Sketcher.Constraint("Vertical", 37, 3, 46, 3))
sketch1.addConstraint(Sketcher.Constraint("Vertical", 34, 3, 49, 3))
sketch1.addConstraint(Sketcher.Constraint("Vertical", 30, 3, 53, 3))
sketch1.addConstraint(Sketcher.Constraint("Vertical", 27, 3, 56, 3))
sketch1.addConstraint(Sketcher.Constraint("Vertical", 25, 3, 58, 3))
sketch1.addConstraint(Sketcher.Constraint("Vertical", 20, 3, 63, 3))
sketch1.addConstraint(Sketcher.Constraint("Vertical", 15, 3, 68, 3))
sketch1.addConstraint(Sketcher.Constraint("Vertical", 13, 3, 70, 3))
sketch1.addConstraint(Sketcher.Constraint("Vertical", 76, 3, 22, 2))
sketch1.addConstraint(Sketcher.Constraint("Vertical", 23, 2, 59, 2))
sketch1.addConstraint(Sketcher.Constraint("Vertical", 22, 2, 60, 2))
sketch1.addConstraint(Sketcher.Constraint("Equal", 21, 24))
sketch1.addConstraint(Sketcher.Constraint("Equal", 17, 28))
sketch1.addConstraint(Sketcher.Constraint("Equal", 14, 31))
sketch1.addConstraint(Sketcher.Constraint("Equal", 10, 35))
sketch1.addConstraint(Sketcher.Constraint("Equal", 62, 2))
sketch1.addConstraint(Sketcher.Constraint("Equal", 2, 5))
sketch1.addConstraint(Sketcher.Constraint("Equal", 66, 9))
sketch1.addConstraint(Sketcher.Constraint("Equal", 69, 12))
sketch1.addConstraint(Sketcher.Constraint("Equal", 73, 16))
sketch1.addConstraint(Sketcher.Constraint("Equal", 36, 47))
sketch1.addConstraint(Sketcher.Constraint("Equal", 33, 50))
sketch1.addConstraint(Sketcher.Constraint("Equal", 29, 54))
sketch1.addConstraint(Sketcher.Constraint("Equal", 7, 19))
sketch1.addConstraint(Sketcher.Constraint("Equal", 4, 22))
sketch1.addConstraint(Sketcher.Constraint("Diameter", 76, 5.0))
sketch1.addConstraint(Sketcher.Constraint("Radius", 1, 1.0))
sketch1.addConstraint(Sketcher.Constraint("Radius", 8, 0.5))
sketch1.addConstraint(Sketcher.Constraint("Angle", 3, Q("120 deg")))
sketch1.addConstraint(Sketcher.Constraint("DistanceX", 10, 1, 10, 2, 1.5))
sketch1.addConstraint(Sketcher.Constraint("DistanceX", 14, 2, 14, 1, 5.4))
sketch1.addConstraint(Sketcher.Constraint("Distance", 3, 0.6))
sketch1.addConstraint(Sketcher.Constraint("DistanceX", 17, 1, 17, 2, 2.420101))
sketch1.addConstraint(Sketcher.Constraint("DistanceY", -1, 1, 56, 1, 22.996998))
sketch1.addConstraint(Sketcher.Constraint("DistanceX", 21, 2, 21, 1, 1.793379))
sketch1.addConstraint(Sketcher.Constraint("DistanceY", -1, 1, 7, 2, 36.017099))
sketch1.addConstraint(Sketcher.Constraint("DistanceX", -1, 1, 1, 3, 17.19388))
sketch1.setExpression("Constraints[191]", "Params.sketch1_diameter")
sketch1.setExpression("Constraints[192]", "Params.sketch1_radius")
sketch1.setExpression("Constraints[193]", "Params.sketch1_radius2")
sketch1.setExpression("Constraints[195]", "Params.sketch1_width")
sketch1.setExpression("Constraints[196]", "Params.sketch1_width2")
pad1 = body.newObject("PartDesign::Pad", "Pad")
pad1.Profile = sketch1
pad1.setExpression("Length", "Params.pad1_length")

doc.recompute()
